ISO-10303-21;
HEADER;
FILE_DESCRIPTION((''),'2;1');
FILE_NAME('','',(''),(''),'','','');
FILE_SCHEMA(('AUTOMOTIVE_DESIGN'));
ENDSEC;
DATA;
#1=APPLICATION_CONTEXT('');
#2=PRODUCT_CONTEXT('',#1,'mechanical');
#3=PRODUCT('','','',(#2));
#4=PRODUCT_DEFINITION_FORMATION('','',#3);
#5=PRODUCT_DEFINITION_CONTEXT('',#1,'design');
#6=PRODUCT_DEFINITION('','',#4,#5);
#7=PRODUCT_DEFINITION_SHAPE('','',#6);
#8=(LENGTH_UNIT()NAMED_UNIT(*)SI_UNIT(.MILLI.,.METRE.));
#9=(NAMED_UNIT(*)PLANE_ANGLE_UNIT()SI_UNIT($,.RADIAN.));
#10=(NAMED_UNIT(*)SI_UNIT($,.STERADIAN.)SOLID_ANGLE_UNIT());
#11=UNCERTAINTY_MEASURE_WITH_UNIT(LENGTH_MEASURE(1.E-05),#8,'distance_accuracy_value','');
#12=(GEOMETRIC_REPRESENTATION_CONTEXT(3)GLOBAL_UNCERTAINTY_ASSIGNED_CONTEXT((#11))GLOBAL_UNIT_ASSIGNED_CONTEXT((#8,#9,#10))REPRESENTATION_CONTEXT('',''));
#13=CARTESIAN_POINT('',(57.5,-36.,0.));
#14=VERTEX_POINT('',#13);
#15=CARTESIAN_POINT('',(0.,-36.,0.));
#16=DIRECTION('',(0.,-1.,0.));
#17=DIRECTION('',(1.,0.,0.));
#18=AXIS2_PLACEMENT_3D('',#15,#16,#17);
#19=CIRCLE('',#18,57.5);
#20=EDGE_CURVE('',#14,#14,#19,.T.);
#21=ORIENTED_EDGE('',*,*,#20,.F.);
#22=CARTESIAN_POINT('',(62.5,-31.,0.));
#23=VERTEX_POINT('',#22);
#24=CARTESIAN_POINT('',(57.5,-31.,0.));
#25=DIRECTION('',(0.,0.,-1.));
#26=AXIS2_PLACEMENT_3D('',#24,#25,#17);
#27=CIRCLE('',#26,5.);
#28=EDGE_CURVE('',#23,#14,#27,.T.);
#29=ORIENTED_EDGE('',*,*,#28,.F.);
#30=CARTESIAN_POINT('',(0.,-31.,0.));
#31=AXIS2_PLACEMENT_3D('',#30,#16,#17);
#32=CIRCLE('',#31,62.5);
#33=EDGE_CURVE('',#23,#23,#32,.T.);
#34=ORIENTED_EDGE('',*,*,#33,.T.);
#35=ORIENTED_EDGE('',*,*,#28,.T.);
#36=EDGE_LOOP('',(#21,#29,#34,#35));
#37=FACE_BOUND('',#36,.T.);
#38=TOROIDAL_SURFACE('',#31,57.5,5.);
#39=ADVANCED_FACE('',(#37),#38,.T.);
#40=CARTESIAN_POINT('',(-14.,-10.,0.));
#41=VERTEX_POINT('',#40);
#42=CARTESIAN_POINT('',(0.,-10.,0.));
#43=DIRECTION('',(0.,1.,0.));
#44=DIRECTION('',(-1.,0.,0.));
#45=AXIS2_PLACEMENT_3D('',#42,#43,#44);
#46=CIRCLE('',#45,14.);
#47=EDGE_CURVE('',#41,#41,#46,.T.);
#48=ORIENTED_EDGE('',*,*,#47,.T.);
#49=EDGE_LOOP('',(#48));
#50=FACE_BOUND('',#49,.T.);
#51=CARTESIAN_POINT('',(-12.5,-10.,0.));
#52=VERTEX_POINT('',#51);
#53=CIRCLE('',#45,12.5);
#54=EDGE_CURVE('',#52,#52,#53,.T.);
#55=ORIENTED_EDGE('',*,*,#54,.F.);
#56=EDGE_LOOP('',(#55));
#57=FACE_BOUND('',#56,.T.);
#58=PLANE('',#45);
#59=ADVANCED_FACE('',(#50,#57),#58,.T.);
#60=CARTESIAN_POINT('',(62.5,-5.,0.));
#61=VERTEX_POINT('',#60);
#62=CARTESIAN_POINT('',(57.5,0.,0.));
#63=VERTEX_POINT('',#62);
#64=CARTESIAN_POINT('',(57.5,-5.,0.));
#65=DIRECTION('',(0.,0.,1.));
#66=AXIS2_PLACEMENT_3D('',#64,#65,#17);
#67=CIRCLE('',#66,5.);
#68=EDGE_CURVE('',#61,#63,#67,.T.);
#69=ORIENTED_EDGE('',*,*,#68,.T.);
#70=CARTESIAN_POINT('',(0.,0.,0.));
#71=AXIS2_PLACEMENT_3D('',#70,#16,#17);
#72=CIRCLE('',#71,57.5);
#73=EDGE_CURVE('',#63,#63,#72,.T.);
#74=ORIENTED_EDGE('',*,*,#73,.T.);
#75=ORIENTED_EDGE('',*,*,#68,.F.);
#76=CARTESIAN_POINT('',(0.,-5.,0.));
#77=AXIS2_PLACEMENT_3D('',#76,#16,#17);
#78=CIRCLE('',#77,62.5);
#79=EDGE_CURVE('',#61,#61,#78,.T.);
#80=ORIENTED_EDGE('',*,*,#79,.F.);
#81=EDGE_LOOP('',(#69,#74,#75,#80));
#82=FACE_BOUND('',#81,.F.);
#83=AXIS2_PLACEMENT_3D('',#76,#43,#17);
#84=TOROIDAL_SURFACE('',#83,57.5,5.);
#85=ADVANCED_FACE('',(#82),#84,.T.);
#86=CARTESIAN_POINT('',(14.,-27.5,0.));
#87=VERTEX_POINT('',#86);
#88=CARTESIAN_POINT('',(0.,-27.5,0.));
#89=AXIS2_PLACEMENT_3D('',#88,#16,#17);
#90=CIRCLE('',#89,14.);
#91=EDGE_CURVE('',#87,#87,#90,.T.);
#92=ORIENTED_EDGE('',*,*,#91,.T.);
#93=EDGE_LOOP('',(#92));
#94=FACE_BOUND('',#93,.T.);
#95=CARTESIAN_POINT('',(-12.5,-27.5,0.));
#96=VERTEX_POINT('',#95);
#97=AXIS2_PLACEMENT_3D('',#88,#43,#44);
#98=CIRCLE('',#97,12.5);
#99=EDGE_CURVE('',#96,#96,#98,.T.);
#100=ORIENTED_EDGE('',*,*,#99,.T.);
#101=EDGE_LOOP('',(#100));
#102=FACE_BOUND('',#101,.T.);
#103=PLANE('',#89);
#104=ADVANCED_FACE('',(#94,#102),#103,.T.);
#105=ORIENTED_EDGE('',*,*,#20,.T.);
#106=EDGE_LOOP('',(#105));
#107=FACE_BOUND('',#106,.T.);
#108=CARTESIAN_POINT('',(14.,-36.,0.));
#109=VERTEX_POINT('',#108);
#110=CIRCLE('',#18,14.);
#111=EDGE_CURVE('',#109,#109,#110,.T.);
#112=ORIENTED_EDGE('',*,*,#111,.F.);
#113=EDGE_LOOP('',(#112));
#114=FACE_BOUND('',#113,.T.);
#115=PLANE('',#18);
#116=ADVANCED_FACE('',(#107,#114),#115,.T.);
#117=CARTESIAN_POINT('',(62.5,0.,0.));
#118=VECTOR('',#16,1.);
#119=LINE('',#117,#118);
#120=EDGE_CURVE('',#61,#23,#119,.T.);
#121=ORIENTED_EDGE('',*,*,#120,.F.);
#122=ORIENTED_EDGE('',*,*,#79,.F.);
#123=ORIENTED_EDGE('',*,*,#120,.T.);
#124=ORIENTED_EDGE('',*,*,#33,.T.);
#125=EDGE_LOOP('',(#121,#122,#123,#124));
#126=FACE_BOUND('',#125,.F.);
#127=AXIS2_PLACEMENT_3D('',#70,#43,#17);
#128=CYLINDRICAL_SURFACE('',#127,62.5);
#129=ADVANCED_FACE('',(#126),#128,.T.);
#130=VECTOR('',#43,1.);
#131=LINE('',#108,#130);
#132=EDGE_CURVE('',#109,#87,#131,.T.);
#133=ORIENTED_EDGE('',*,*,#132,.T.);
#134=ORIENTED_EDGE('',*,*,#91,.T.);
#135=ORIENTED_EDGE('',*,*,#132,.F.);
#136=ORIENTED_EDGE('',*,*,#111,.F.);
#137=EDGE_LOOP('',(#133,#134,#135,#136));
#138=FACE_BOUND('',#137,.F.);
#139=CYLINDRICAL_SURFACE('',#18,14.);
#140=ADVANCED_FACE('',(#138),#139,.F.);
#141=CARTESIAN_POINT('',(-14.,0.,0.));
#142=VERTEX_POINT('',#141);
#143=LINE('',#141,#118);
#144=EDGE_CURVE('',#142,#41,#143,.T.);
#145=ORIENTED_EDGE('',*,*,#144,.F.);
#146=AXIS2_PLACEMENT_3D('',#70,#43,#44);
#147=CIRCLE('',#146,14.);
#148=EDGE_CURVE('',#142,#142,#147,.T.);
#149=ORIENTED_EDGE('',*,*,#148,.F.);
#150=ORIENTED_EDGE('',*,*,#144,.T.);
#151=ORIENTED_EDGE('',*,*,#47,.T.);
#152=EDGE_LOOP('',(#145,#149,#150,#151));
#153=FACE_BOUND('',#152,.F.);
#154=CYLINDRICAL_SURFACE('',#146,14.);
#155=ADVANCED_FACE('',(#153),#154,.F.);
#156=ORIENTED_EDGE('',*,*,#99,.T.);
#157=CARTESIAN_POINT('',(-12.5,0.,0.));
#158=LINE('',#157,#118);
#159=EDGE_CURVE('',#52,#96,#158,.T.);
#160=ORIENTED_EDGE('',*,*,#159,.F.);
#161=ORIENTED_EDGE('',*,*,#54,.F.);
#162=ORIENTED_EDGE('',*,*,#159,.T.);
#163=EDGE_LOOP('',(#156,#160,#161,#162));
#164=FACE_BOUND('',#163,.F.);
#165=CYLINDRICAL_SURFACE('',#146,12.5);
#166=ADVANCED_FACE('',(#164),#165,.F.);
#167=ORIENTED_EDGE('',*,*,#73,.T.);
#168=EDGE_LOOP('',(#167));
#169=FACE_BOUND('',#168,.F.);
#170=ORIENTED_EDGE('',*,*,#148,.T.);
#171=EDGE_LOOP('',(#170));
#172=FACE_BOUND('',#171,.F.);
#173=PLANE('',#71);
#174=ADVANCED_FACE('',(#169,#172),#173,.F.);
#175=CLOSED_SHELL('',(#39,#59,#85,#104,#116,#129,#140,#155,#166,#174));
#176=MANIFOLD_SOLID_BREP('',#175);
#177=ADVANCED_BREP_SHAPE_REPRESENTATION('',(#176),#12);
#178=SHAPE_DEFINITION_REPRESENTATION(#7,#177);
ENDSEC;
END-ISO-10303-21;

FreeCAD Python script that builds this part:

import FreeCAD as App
import Part
import Sketcher
from FreeCAD import Vector


def edges_at(feature, points):
    """Names of the edges that pass closest to the given points."""
    edges = feature.Shape.Edges
    near = lambda p: min(range(len(edges)), key=lambda i: edges[i].distToShape(Part.Vertex(*p))[0])
    return sorted({f"Edge{near(p) + 1}" for p in points})

doc = App.newDocument("Part")
body = doc.addObject("PartDesign::Body", "Body")

sketch1 = doc.addObject("Sketcher::SketchObject", "Sketch")
body.addObject(sketch1)
sketch1.AttachmentSupport = (doc.XZ_Plane, [""])
sketch1.MapMode = "FlatFace"
sketch1.addGeometry(Part.Circle(Vector(0, 0, 0), Vector(0, 0, 1), 62), False)
sketch1.addConstraint([
    Sketcher.Constraint("Coincident", 0, 3, -1, 1),
    Sketcher.Constraint("Diameter", 0, 125.0),
])
pad1 = doc.addObject("PartDesign::Pad", "Pad")
body.addObject(pad1)
pad1.Profile = sketch1
pad1.Length = 36
doc.recompute()

fillet = doc.addObject("PartDesign::Fillet", "Fillet")
body.addObject(fillet)
fillet.Base = (pad1, edges_at(pad1, [(-62.5, -36, 0), (-62.5, 0, 0)]))
fillet.Radius = 5

sketch2 = doc.addObject("Sketcher::SketchObject", "Sketch001")
body.addObject(sketch2)
sketch2.AttachmentSupport = (doc.XZ_Plane, [""])
sketch2.MapMode = "FlatFace"
sketch2.addGeometry(Part.Circle(Vector(0, 0, 0), Vector(0, 0, 1), 12), False)
sketch2.addConstraint([
    Sketcher.Constraint("Coincident", 0, 3, -1, 1),
    Sketcher.Constraint("Diameter", 0, 25.0),
])
pocket1 = doc.addObject("PartDesign::Pocket", "Pocket")
body.addObject(pocket1)
pocket1.Profile = sketch2
pocket1.Type = "ThroughAll"
pocket1.Reversed = True

sketch3 = doc.addObject("Sketcher::SketchObject", "Sketch002")
body.addObject(sketch3)
sketch3.AttachmentSupport = (doc.XZ_Plane, [""])
sketch3.MapMode = "FlatFace"
sketch3.AttachmentOffset = App.Placement(Vector(0, 0, 36), App.Rotation())
sketch3.addGeometry(Part.Circle(Vector(0, 0, 0), Vector(0, 0, 1), 14), False)
sketch3.addConstraint([
    Sketcher.Constraint("Coincident", 0, 3, -1, 1),
    Sketcher.Constraint("Diameter", 0, 28.0),
])
pocket2 = doc.addObject("PartDesign::Pocket", "Pocket001")
body.addObject(pocket2)
pocket2.Profile = sketch3
pocket2.Length = 8.5

sketch4 = doc.addObject("Sketcher::SketchObject", "Sketch003")
body.addObject(sketch4)
sketch4.AttachmentSupport = (doc.XZ_Plane, [""])
sketch4.MapMode = "FlatFace"
sketch4.addGeometry(Part.Circle(Vector(0, 0, 0), Vector(0, 0, 1), 14), False)
sketch4.addConstraint([
    Sketcher.Constraint("Coincident", 0, 3, -1, 1),
    Sketcher.Constraint("Diameter", 0, 28.0),
])
pocket3 = doc.addObject("PartDesign::Pocket", "Pocket002")
body.addObject(pocket3)
pocket3.Profile = sketch4
pocket3.Length = 10
pocket3.Reversed = True

doc.recompute()
